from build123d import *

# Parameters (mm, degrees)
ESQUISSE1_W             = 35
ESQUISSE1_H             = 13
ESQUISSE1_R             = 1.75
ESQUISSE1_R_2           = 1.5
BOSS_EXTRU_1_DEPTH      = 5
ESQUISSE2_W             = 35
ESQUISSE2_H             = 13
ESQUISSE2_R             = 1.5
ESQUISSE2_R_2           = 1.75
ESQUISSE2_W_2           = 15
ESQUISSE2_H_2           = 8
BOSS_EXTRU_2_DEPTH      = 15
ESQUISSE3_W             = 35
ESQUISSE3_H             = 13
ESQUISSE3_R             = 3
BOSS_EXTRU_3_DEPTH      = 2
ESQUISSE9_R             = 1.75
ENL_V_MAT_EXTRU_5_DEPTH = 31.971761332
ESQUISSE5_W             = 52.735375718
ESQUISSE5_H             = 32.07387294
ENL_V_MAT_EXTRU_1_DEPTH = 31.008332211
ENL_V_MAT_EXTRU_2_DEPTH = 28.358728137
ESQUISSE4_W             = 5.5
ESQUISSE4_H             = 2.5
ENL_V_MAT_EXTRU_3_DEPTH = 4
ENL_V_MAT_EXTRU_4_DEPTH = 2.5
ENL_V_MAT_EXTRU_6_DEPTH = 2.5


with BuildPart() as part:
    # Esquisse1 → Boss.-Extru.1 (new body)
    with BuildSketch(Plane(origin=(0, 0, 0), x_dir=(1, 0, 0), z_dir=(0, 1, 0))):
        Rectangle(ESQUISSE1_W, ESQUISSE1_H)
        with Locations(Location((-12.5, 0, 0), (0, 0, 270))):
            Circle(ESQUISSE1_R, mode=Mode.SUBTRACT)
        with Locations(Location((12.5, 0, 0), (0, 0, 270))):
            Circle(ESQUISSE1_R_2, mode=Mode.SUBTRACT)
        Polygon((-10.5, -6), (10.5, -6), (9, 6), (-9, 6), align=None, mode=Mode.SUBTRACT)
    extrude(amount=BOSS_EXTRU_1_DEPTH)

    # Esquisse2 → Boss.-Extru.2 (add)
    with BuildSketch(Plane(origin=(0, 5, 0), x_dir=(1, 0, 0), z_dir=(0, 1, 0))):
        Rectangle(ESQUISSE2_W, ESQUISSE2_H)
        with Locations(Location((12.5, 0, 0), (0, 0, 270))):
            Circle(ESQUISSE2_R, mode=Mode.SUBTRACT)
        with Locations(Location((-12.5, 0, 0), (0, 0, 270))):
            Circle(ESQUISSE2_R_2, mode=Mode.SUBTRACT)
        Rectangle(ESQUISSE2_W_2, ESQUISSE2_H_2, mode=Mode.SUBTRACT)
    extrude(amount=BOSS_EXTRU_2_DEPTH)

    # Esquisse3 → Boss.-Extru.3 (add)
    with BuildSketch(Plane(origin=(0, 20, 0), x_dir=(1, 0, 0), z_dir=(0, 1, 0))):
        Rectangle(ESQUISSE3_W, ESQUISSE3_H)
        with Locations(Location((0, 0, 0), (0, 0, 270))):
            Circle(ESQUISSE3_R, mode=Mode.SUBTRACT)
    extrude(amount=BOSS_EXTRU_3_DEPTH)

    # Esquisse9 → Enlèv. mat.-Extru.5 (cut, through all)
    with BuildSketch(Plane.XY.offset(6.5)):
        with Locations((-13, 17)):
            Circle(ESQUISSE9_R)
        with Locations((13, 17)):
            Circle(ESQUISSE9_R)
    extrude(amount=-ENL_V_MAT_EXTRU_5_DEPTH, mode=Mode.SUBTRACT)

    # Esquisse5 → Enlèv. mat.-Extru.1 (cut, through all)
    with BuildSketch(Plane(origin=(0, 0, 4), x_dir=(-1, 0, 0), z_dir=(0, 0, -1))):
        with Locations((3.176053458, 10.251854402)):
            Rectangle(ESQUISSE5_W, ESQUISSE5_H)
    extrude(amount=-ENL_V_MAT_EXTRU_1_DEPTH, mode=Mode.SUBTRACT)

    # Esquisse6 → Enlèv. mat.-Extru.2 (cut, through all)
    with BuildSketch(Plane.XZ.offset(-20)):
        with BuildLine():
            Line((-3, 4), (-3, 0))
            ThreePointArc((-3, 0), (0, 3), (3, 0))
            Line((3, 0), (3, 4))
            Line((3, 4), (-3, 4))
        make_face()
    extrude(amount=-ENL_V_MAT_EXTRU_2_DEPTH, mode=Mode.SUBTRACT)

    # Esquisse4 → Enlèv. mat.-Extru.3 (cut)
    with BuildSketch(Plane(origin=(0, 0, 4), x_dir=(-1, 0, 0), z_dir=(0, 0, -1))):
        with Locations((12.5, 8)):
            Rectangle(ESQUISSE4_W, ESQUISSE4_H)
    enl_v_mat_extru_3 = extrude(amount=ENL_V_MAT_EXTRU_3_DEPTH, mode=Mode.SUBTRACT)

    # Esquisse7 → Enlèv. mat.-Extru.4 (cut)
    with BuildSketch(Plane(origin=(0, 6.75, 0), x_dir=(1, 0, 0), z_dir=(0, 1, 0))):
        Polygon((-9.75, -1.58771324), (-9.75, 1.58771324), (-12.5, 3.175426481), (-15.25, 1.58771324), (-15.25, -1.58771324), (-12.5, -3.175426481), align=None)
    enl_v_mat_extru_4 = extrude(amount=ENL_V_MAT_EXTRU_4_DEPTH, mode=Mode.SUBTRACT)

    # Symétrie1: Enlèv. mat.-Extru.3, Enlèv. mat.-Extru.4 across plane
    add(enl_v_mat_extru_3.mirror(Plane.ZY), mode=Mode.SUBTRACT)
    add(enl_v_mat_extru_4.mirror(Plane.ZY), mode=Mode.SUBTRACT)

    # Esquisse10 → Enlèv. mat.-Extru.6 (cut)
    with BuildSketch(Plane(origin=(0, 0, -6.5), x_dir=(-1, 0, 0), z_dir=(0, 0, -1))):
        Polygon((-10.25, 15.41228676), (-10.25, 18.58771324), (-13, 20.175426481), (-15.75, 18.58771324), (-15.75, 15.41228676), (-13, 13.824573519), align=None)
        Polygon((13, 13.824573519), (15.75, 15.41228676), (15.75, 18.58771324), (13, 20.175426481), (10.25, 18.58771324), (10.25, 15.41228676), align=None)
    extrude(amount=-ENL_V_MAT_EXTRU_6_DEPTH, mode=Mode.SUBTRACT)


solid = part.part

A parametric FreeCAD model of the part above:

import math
import FreeCAD as App
import Part
import Sketcher
from FreeCAD import Vector
Q = App.Units.Quantity


def add_polygon(sketch, points):
    """Adds a closed chain of lines whose ends are joined by coincident constraints."""
    first, n = sketch.GeometryCount, len(points)
    for a, b in zip(points, points[1:] + points[:1]):
        sketch.addGeometry(Part.LineSegment(App.Vector(*a, 0), App.Vector(*b, 0)), False)
    for i in range(n):
        sketch.addConstraint(Sketcher.Constraint("Coincident", first + i, 2, first + (i + 1) % n, 1))

doc = App.newDocument("Part")
params = doc.addObject("Spreadsheet::Sheet", "Params")
for row, (alias, value) in enumerate([
    ("sketch1_diameter", "3 mm"),
    ("sketch1_diameter2", "3.5 mm"),
    ("sketch1_width", "35 mm"),
    ("sketch1_width2", "21 mm"),
    ("sketch1_width3", "18 mm"),
    ("pad1_length", "5 mm"),
    ("sketch2_diameter", "3 mm"),
    ("sketch2_diameter2", "3.5 mm"),
    ("sketch2_width", "35 mm"),
    ("sketch2_width2", "15 mm"),
    ("sketch2_height", "13 mm"),
    ("pad2_length", "15 mm"),
    ("sketch3_diameter", "6 mm"),
    ("sketch3_width", "35 mm"),
    ("sketch3_height", "13 mm"),
    ("pad3_length", "2 mm"),
    ("sketch4_diameter", "3.5 mm"),
    ("sketch6_radius", "3 mm"),
    ("sketch6_height", "4 mm"),
    ("sketch7_width", "5.5 mm"),
    ("sketch7_height", "2.5 mm"),
    ("pocket4_length", "4 mm"),
    ("pocket5_length", "2.5 mm"),
    ("pocket6_length", "2.5 mm"),
], start=1):
    params.set(f"A{row}", alias)
    params.set(f"B{row}", "=" + value)
    params.setAlias(f"B{row}", alias)

body = doc.addObject("PartDesign::Body", "Body")

# Sketch on XZ plane
sketch1 = body.newObject("Sketcher::SketchObject", "Sketch")
sketch1.AttachmentSupport = (doc.getObject("XZ_Plane"), [""])
sketch1.MapMode = "FlatFace"
add_polygon(sketch1, [(-17.5, -6.5), (-17.5, 6.5), (17.5, 6.5), (17.5, -6.5)])  # lines 0-3
sketch1.addGeometry(Part.Circle(Vector(-12.5, 0, 0), Vector(0, 0, 1), 1.75), False)  # 4
add_polygon(sketch1, [(10.5, 6), (-10.5, 6), (-9, -6), (9, -6)])  # lines 5-8
sketch1.addGeometry(Part.Circle(Vector(12.5, 0, 0), Vector(0, 0, 1), 1.5), False)  # 9
sketch1.addConstraint(Sketcher.Constraint("Vertical", 0))
sketch1.addConstraint(Sketcher.Constraint("Horizontal", 1))
sketch1.addConstraint(Sketcher.Constraint("Vertical", 2))
sketch1.addConstraint(Sketcher.Constraint("Horizontal", 3))
sketch1.addConstraint(Sketcher.Constraint("Horizontal", 5))
sketch1.addConstraint(Sketcher.Constraint("Horizontal", 7))
sketch1.addConstraint(Sketcher.Constraint("Symmetric", 4, 3, 9, 3, -1, 1))
sketch1.addConstraint(Sketcher.Constraint("Symmetric", 0, 2, 2, 2, -1, 1))
sketch1.addConstraint(Sketcher.Constraint("PointOnObject", 4, 3, -1))
sketch1.addConstraint(Sketcher.Constraint("Equal", 6, 8))
sketch1.addConstraint(Sketcher.Constraint("Diameter", 9, Q("3 mm")))
sketch1.addConstraint(Sketcher.Constraint("Diameter", 4, Q("3.5 mm")))
sketch1.addConstraint(Sketcher.Constraint("DistanceX", 1, 1, 1, 2, Q("35 mm")))
sketch1.addConstraint(Sketcher.Constraint("DistanceX", 5, 2, 5, 1, Q("21 mm")))
sketch1.addConstraint(Sketcher.Constraint("DistanceX", 7, 1, 7, 2, Q("18 mm")))
sketch1.addConstraint(Sketcher.Constraint("DistanceY", 0, 1, 0, 2, Q("13 mm")))
sketch1.addConstraint(Sketcher.Constraint("DistanceY", -1, 1, 5, 2, Q("6 mm")))
sketch1.addConstraint(Sketcher.Constraint("DistanceX", 6, 2, -1, 1, Q("9 mm")))
sketch1.addConstraint(Sketcher.Constraint("DistanceY", 6, 2, -1, 1, Q("6 mm")))
sketch1.addConstraint(Sketcher.Constraint("DistanceX", 4, 3, 9, 3, Q("25 mm")))
sketch1.setExpression("Constraints[18]", "Params.sketch1_diameter")
sketch1.setExpression("Constraints[19]", "Params.sketch1_diameter2")
sketch1.setExpression("Constraints[20]", "Params.sketch1_width")
sketch1.setExpression("Constraints[21]", "Params.sketch1_width2")
sketch1.setExpression("Constraints[22]", "Params.sketch1_width3")
pad1 = body.newObject("PartDesign::Pad", "Pad")
pad1.Profile = sketch1
pad1.setExpression("Length", "Params.pad1_length")
pad1.Reversed = True

# Sketch on XZ plane
sketch2 = body.newObject("Sketcher::SketchObject", "Sketch001")
sketch2.AttachmentSupport = (doc.getObject("XZ_Plane"), [""])
sketch2.MapMode = "FlatFace"
sketch2.AttachmentOffset = App.Placement(Vector(0, 0, -5), App.Rotation())
add_polygon(sketch2, [(-17.5, -6.5), (-17.5, 6.5), (17.5, 6.5), (17.5, -6.5)])  # lines 0-3
sketch2.addGeometry(Part.Circle(Vector(-12.5, 0, 0), Vector(0, 0, 1), 1.75), False)  # 4
add_polygon(sketch2, [(7.5, 4), (-7.5, 4), (-7.5, -4), (7.5, -4)])  # lines 5-8
sketch2.addGeometry(Part.Circle(Vector(12.5, 0, 0), Vector(0, 0, 1), 1.5), False)  # 9
sketch2.addConstraint(Sketcher.Constraint("Vertical", 0))
sketch2.addConstraint(Sketcher.Constraint("Horizontal", 1))
sketch2.addConstraint(Sketcher.Constraint("Vertical", 2))
sketch2.addConstraint(Sketcher.Constraint("Horizontal", 3))
sketch2.addConstraint(Sketcher.Constraint("Horizontal", 5))
sketch2.addConstraint(Sketcher.Constraint("Vertical", 6))
sketch2.addConstraint(Sketcher.Constraint("Horizontal", 7))
sketch2.addConstraint(Sketcher.Constraint("Vertical", 8))
sketch2.addConstraint(Sketcher.Constraint("Symmetric", 4, 3, 9, 3, -1, 1))
sketch2.addConstraint(Sketcher.Constraint("Symmetric", 0, 2, 2, 2, -1, 1))
sketch2.addConstraint(Sketcher.Constraint("Symmetric", 5, 2, 7, 2, -1, 1))
sketch2.addConstraint(Sketcher.Constraint("PointOnObject", 4, 3, -1))
sketch2.addConstraint(Sketcher.Constraint("Diameter", 9, Q("3 mm")))
sketch2.addConstraint(Sketcher.Constraint("Diameter", 4, Q("3.5 mm")))
sketch2.addConstraint(Sketcher.Constraint("DistanceX", 1, 1, 1, 2, Q("35 mm")))
sketch2.addConstraint(Sketcher.Constraint("DistanceX", 5, 2, 5, 1, Q("15 mm")))
sketch2.addConstraint(Sketcher.Constraint("DistanceY", 0, 1, 0, 2, Q("13 mm")))
sketch2.addConstraint(Sketcher.Constraint("DistanceY", 6, 2, 6, 1, Q("8 mm")))
sketch2.addConstraint(Sketcher.Constraint("DistanceX", 4, 3, 9, 3, Q("25 mm")))
sketch2.setExpression("Constraints[20]", "Params.sketch2_diameter")
sketch2.setExpression("Constraints[21]", "Params.sketch2_diameter2")
sketch2.setExpression("Constraints[22]", "Params.sketch2_width")
sketch2.setExpression("Constraints[23]", "Params.sketch2_width2")
sketch2.setExpression("Constraints[24]", "Params.sketch2_height")
pad2 = body.newObject("PartDesign::Pad", "Pad001")
pad2.Profile = sketch2
pad2.setExpression("Length", "Params.pad2_length")
pad2.Reversed = True

# Sketch on XZ plane
sketch3 = body.newObject("Sketcher::SketchObject", "Sketch002")
sketch3.AttachmentSupport = (doc.getObject("XZ_Plane"), [""])
sketch3.MapMode = "FlatFace"
sketch3.AttachmentOffset = App.Placement(Vector(0, 0, -20), App.Rotation())
add_polygon(sketch3, [(-17.5, -6.5), (-17.5, 6.5), (17.5, 6.5), (17.5, -6.5)])  # lines 0-3
sketch3.addGeometry(Part.Circle(Vector(0, 0, 0), Vector(0, 0, 1), 3), False)  # 4
sketch3.addConstraint(Sketcher.Constraint("Vertical", 0))
sketch3.addConstraint(Sketcher.Constraint("Horizontal", 1))
sketch3.addConstraint(Sketcher.Constraint("Vertical", 2))
sketch3.addConstraint(Sketcher.Constraint("Horizontal", 3))
sketch3.addConstraint(Sketcher.Constraint("Coincident", 4, 3, -1, 1))
sketch3.addConstraint(Sketcher.Constraint("Symmetric", 0, 2, 2, 2, -1, 1))
sketch3.addConstraint(Sketcher.Constraint("Diameter", 4, Q("6 mm")))
sketch3.addConstraint(Sketcher.Constraint("DistanceX", 1, 1, 1, 2, Q("35 mm")))
sketch3.addConstraint(Sketcher.Constraint("DistanceY", 0, 1, 0, 2, Q("13 mm")))
sketch3.setExpression("Constraints[10]", "Params.sketch3_diameter")
sketch3.setExpression("Constraints[11]", "Params.sketch3_width")
sketch3.setExpression("Constraints[12]", "Params.sketch3_height")
pad3 = body.newObject("PartDesign::Pad", "Pad002")
pad3.Profile = sketch3
pad3.setExpression("Length", "Params.pad3_length")
pad3.Reversed = True

# Sketch on XY plane
sketch4 = body.newObject("Sketcher::SketchObject", "Sketch003")
sketch4.AttachmentSupport = (doc.getObject("XY_Plane"), [""])
sketch4.MapMode = "FlatFace"
sketch4.AttachmentOffset = App.Placement(Vector(0, 0, 6.5), App.Rotation())
sketch4.addGeometry(Part.Circle(Vector(-13, 17, 0), Vector(0, 0, 1), 1.75), False)
sketch4.addGeometry(Part.Circle(Vector(13, 17, 0), Vector(0, 0, 1), 1.75), False)
sketch4.addConstraint(Sketcher.Constraint("Equal", 0, 1))
sketch4.addConstraint(Sketcher.Constraint("Symmetric", 0, 3, 1, 3, -2))
sketch4.addConstraint(Sketcher.Constraint("Diameter", 0, Q("3.5 mm")))
sketch4.addConstraint(Sketcher.Constraint("DistanceX", 0, 3, -1, 1, Q("13 mm")))
sketch4.addConstraint(Sketcher.Constraint("DistanceY", -1, 1, 0, 3, Q("17 mm")))
sketch4.setExpression("Constraints[2]", "Params.sketch4_diameter")
pocket1 = body.newObject("PartDesign::Pocket", "Pocket")
pocket1.Profile = sketch4
pocket1.Type = "ThroughAll"

# Sketch on XY plane
sketch5 = body.newObject("Sketcher::SketchObject", "Sketch004")
sketch5.AttachmentSupport = (doc.getObject("XY_Plane"), [""])
sketch5.MapMode = "FlatFace"
sketch5.AttachmentOffset = App.Placement(Vector(0, 0, 4), App.Rotation())
add_polygon(sketch5, [(23.191634, 26.288791), (23.191634, -5.785082), (-29.543741, -5.785082), (-29.543741, 26.288791)])  # lines 0-3
sketch5.addConstraint(Sketcher.Constraint("Vertical", 0))
sketch5.addConstraint(Sketcher.Constraint("Horizontal", 1))
sketch5.addConstraint(Sketcher.Constraint("Vertical", 2))
sketch5.addConstraint(Sketcher.Constraint("Horizontal", 3))
sketch5.addConstraint(Sketcher.Constraint("DistanceX", 1, 2, 1, 1, Q("52.735376 mm")))
sketch5.addConstraint(Sketcher.Constraint("DistanceY", 0, 2, 0, 1, Q("32.073873 mm")))
sketch5.addConstraint(Sketcher.Constraint("DistanceX", 1, 2, -1, 1, Q("29.543741 mm")))
sketch5.addConstraint(Sketcher.Constraint("DistanceY", -1, 1, 2, 2, Q("26.288791 mm")))
pocket2 = body.newObject("PartDesign::Pocket", "Pocket001")
pocket2.Profile = sketch5
pocket2.Type = "ThroughAll"
pocket2.Reversed = True

# Sketch on XZ plane
sketch6 = body.newObject("Sketcher::SketchObject", "Sketch005")
sketch6.AttachmentSupport = (doc.getObject("XZ_Plane"), [""])
sketch6.MapMode = "FlatFace"
sketch6.AttachmentOffset = App.Placement(Vector(0, 0, -20), App.Rotation())
sketch6.addGeometry(Part.LineSegment(Vector(-3, 4, 0), Vector(-3, 0, 0)), False)
sketch6.addGeometry(Part.ArcOfCircle(Part.Circle(Vector(0, 0, 0), Vector(0, 0, 1), 3), math.radians(0), math.radians(180)), False)
sketch6.addGeometry(Part.LineSegment(Vector(3, 0, 0), Vector(3, 4, 0)), False)
sketch6.addGeometry(Part.LineSegment(Vector(3, 4, 0), Vector(-3, 4, 0)), False)
sketch6.addConstraint(Sketcher.Constraint("Tangent", 0, 2, 1, 2))
sketch6.addConstraint(Sketcher.Constraint("Tangent", 1, 1, 2, 1))
sketch6.addConstraint(Sketcher.Constraint("Coincident", 2, 2, 3, 1))
sketch6.addConstraint(Sketcher.Constraint("Coincident", 3, 2, 0, 1))
sketch6.addConstraint(Sketcher.Constraint("Vertical", 0))
sketch6.addConstraint(Sketcher.Constraint("Vertical", 2))
sketch6.addConstraint(Sketcher.Constraint("Horizontal", 3))
sketch6.addConstraint(Sketcher.Constraint("Coincident", 1, 3, -1, 1))
sketch6.addConstraint(Sketcher.Constraint("Radius", 1, Q("3 mm")))
sketch6.addConstraint(Sketcher.Constraint("DistanceY", 0, 2, 0, 1, Q("4 mm")))
sketch6.setExpression("Constraints[8]", "Params.sketch6_radius")
sketch6.setExpression("Constraints[9]", "Params.sketch6_height")
pocket3 = body.newObject("PartDesign::Pocket", "Pocket002")
pocket3.Profile = sketch6
pocket3.Type = "ThroughAll"

# Sketch on XY plane
sketch7 = body.newObject("Sketcher::SketchObject", "Sketch006")
sketch7.AttachmentSupport = (doc.getObject("XY_Plane"), [""])
sketch7.MapMode = "FlatFace"
sketch7.AttachmentOffset = App.Placement(Vector(0, 0, 4), App.Rotation())
add_polygon(sketch7, [(-9.75, 9.25), (-9.75, 6.75), (-15.25, 6.75), (-15.25, 9.25)])  # lines 0-3
sketch7.addConstraint(Sketcher.Constraint("Vertical", 0))
sketch7.addConstraint(Sketcher.Constraint("Horizontal", 1))
sketch7.addConstraint(Sketcher.Constraint("Vertical", 2))
sketch7.addConstraint(Sketcher.Constraint("Horizontal", 3))
sketch7.addConstraint(Sketcher.Constraint("DistanceX", 1, 2, 1, 1, Q("5.5 mm")))
sketch7.addConstraint(Sketcher.Constraint("DistanceY", 0, 2, 0, 1, Q("2.5 mm")))
sketch7.addConstraint(Sketcher.Constraint("DistanceX", 0, 2, -1, 1, Q("9.75 mm")))
sketch7.addConstraint(Sketcher.Constraint("DistanceY", -1, 1, 0, 2, Q("6.75 mm")))
sketch7.setExpression("Constraints[8]", "Params.sketch7_width")
sketch7.setExpression("Constraints[9]", "Params.sketch7_height")
pocket4 = body.newObject("PartDesign::Pocket", "Pocket003")
pocket4.Profile = sketch7
pocket4.setExpression("Length", "Params.pocket4_length")

# Sketch on XZ plane
sketch8 = body.newObject("Sketcher::SketchObject", "Sketch007")
sketch8.AttachmentSupport = (doc.getObject("XZ_Plane"), [""])
sketch8.MapMode = "FlatFace"
sketch8.AttachmentOffset = App.Placement(Vector(0, 0, -6.75), App.Rotation())
add_polygon(sketch8, [(-9.75, 1.587713), (-9.75, -1.587713), (-12.5, -3.175426), (-15.25, -1.587713), (-15.25, 1.587713), (-12.5, 3.175426)])  # lines 0-5
sketch8.addConstraint(Sketcher.Constraint("Vertical", 0))
sketch8.addConstraint(Sketcher.Constraint("Vertical", 3))
sketch8.addConstraint(Sketcher.Constraint("Symmetric", 1, 2, 4, 2, -1))
sketch8.addConstraint(Sketcher.Constraint("Parallel", 1, 4))
sketch8.addConstraint(Sketcher.Constraint("Parallel", 2, 5))
sketch8.addConstraint(Sketcher.Constraint("Horizontal", 0, 2, 2, 2))
sketch8.addConstraint(Sketcher.Constraint("Horizontal", 3, 2, 5, 2))
sketch8.addConstraint(Sketcher.Constraint("Angle", 1, Q("-150 deg")))
sketch8.addConstraint(Sketcher.Constraint("DistanceX", 1, 2, -1, 1, Q("12.5 mm")))
sketch8.addConstraint(Sketcher.Constraint("DistanceX", 2, 2, 0, 2, Q("5.5 mm")))
sketch8.addConstraint(Sketcher.Constraint("DistanceY", 0, 2, 0, 1, Q("3.175426 mm")))
pocket5 = body.newObject("PartDesign::Pocket", "Pocket004")
pocket5.Profile = sketch8
pocket5.setExpression("Length", "Params.pocket5_length")
doc.recompute()

mirrored = body.newObject("PartDesign::Mirrored", "Mirrored")
mirrored.Originals = [pocket4, pocket5]
mirrored.MirrorPlane = (doc.getObject("YZ_Plane"), [""])
body.Tip = mirrored

# Sketch on XY plane
sketch9 = body.newObject("Sketcher::SketchObject", "Sketch008")
sketch9.AttachmentSupport = (doc.getObject("XY_Plane"), [""])
sketch9.MapMode = "FlatFace"
sketch9.AttachmentOffset = App.Placement(Vector(0, 0, -6.5), App.Rotation())
add_polygon(sketch9, [(10.25, 15.412287), (10.25, 18.587713), (13, 20.175426), (15.75, 18.587713), (15.75, 15.412287), (13, 13.824574)])  # lines 0-5
add_polygon(sketch9, [(-13, 13.824574), (-15.75, 15.412287), (-15.75, 18.587713), (-13, 20.175426), (-10.25, 18.587713), (-10.25, 15.412287)])  # lines 6-11
sketch9.addConstraint(Sketcher.Constraint("Vertical", 0))
sketch9.addConstraint(Sketcher.Constraint("Vertical", 3))
sketch9.addConstraint(Sketcher.Constraint("Vertical", 7))
sketch9.addConstraint(Sketcher.Constraint("Vertical", 10))
sketch9.addConstraint(Sketcher.Constraint("Symmetric", 3, 2, 6, 2, -2))
sketch9.addConstraint(Sketcher.Constraint("Symmetric", 1, 2, 8, 2, -2))
sketch9.addConstraint(Sketcher.Constraint("Symmetric", 0, 2, 9, 2, -2))
sketch9.addConstraint(Sketcher.Constraint("Symmetric", 4, 2, 11, 2, -2))
sketch9.addConstraint(Sketcher.Constraint("Parallel", 1, 4))
sketch9.addConstraint(Sketcher.Constraint("Parallel", 2, 5))
sketch9.addConstraint(Sketcher.Constraint("Parallel", 5, 6))
sketch9.addConstraint(Sketcher.Constraint("Parallel", 4, 8))
sketch9.addConstraint(Sketcher.Constraint("Parallel", 8, 11))
sketch9.addConstraint(Sketcher.Constraint("Horizontal", 0, 2, 2, 2))
sketch9.addConstraint(Sketcher.Constraint("Horizontal", 3, 2, 5, 2))
sketch9.addConstraint(Sketcher.Constraint("Angle", 1, Q("30 deg")))
sketch9.addConstraint(Sketcher.Constraint("DistanceX", -1, 1, 1, 2, Q("13 mm")))
sketch9.addConstraint(Sketcher.Constraint("DistanceX", 0, 2, 2, 2, Q("5.5 mm")))
sketch9.addConstraint(Sketcher.Constraint("DistanceY", 0, 1, 0, 2, Q("3.175426 mm")))
sketch9.addConstraint(Sketcher.Constraint("DistanceY", -1, 1, 0, 2, Q("18.587713 mm")))
pocket6 = body.newObject("PartDesign::Pocket", "Pocket005")
pocket6.Profile = sketch9
pocket6.setExpression("Length", "Params.pocket6_length")
pocket6.Reversed = True

doc.recompute()
